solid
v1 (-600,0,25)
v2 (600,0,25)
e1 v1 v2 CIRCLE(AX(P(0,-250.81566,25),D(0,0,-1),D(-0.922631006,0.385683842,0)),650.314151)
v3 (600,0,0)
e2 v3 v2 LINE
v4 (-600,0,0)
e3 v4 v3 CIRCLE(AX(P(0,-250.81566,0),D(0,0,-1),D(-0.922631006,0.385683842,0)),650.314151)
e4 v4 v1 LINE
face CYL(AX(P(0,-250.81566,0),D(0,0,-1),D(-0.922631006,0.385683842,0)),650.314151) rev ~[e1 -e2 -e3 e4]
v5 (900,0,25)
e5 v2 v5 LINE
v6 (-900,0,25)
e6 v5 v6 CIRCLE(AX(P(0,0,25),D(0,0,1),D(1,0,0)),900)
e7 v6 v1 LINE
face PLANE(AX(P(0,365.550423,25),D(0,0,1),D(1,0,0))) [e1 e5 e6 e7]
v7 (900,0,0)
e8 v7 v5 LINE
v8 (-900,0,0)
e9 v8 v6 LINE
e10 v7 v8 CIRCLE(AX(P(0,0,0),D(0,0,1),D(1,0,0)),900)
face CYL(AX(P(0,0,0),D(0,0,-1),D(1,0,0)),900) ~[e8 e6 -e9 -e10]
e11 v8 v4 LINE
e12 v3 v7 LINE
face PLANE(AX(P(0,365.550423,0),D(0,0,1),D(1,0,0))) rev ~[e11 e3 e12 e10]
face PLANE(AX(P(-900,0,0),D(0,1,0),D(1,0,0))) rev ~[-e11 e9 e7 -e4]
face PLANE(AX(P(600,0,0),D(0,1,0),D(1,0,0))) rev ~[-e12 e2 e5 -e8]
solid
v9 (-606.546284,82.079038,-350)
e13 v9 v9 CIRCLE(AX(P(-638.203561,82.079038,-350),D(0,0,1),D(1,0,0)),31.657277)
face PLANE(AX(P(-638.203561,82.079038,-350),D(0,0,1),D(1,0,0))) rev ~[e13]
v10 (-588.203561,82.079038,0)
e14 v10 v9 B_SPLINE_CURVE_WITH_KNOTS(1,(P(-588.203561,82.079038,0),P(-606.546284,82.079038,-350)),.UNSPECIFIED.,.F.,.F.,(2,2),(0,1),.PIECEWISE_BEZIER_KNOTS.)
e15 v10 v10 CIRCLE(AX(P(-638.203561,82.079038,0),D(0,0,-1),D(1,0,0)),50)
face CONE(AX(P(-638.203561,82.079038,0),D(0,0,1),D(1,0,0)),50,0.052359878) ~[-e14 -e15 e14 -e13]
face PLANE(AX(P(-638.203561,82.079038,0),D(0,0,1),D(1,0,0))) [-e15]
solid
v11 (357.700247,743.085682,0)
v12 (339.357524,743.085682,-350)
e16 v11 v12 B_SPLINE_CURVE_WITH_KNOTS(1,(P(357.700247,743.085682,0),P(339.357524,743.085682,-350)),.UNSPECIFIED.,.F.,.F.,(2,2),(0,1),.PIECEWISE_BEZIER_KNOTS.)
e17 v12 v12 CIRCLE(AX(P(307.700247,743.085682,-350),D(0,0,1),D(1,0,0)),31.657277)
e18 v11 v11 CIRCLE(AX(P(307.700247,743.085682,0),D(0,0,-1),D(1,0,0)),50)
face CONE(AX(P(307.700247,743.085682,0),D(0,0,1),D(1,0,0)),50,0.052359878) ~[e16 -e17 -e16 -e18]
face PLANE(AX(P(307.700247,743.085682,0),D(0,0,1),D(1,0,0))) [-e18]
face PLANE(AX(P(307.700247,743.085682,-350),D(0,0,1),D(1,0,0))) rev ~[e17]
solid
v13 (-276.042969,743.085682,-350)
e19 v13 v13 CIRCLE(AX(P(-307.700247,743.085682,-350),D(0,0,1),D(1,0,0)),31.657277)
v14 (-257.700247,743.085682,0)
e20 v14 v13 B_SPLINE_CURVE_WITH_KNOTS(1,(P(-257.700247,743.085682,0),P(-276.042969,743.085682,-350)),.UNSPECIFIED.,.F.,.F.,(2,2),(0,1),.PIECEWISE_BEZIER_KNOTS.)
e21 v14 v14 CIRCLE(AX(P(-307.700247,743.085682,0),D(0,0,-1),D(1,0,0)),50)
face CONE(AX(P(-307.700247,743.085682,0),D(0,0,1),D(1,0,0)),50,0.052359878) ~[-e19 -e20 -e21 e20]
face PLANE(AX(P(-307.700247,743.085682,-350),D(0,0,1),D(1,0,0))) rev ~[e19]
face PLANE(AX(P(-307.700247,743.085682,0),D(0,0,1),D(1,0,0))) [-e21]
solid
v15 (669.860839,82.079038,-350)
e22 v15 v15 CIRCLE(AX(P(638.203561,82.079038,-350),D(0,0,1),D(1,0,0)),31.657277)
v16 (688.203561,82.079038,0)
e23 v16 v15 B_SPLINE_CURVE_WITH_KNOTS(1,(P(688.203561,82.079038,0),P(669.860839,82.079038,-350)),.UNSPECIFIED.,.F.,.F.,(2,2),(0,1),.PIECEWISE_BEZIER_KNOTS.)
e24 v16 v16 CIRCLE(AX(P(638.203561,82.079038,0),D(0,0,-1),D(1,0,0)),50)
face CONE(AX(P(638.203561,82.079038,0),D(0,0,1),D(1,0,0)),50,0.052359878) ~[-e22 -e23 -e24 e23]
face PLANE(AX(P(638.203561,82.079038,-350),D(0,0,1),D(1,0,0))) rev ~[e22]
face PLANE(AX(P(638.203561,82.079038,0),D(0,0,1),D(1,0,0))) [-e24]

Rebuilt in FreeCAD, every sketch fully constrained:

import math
import FreeCAD as App
import Part
import Sketcher
from FreeCAD import Vector
Q = App.Units.Quantity

doc = App.newDocument("Part")
body = doc.addObject("PartDesign::Body", "Body")

sketch1 = body.newObject("Sketcher::SketchObject", "Sketch")
sketch1.AttachmentSupport = (doc.getObject("XY_Plane"), [""])
sketch1.MapMode = "FlatFace"
sketch1.addGeometry(Part.LineSegment(Vector(600, 0, 0), Vector(900, 0, 0)), False)
sketch1.addGeometry(Part.ArcOfCircle(Part.Circle(Vector(0, 0, 0), Vector(0, 0, 1), 900), math.radians(0), math.radians(180)), False)
sketch1.addGeometry(Part.LineSegment(Vector(-900, 0, 0), Vector(-600, 0, 0)), False)
sketch1.addGeometry(Part.ArcOfCircle(Part.Circle(Vector(0, -251, 0), Vector(0, 0, 1), 650), math.radians(23), math.radians(157)), False)
sketch1.addConstraint(Sketcher.Constraint("Coincident", 0, 2, 1, 1))
sketch1.addConstraint(Sketcher.Constraint("Coincident", 1, 2, 2, 1))
sketch1.addConstraint(Sketcher.Constraint("Coincident", 2, 2, 3, 2))
sketch1.addConstraint(Sketcher.Constraint("Coincident", 3, 1, 0, 1))
sketch1.addConstraint(Sketcher.Constraint("Horizontal", 0))
sketch1.addConstraint(Sketcher.Constraint("Horizontal", 2))
sketch1.addConstraint(Sketcher.Constraint("Coincident", 1, 3, -1, 1))
sketch1.addConstraint(Sketcher.Constraint("PointOnObject", 3, 3, -2))
sketch1.addConstraint(Sketcher.Constraint("PointOnObject", 0, 2, -1))
sketch1.addConstraint(Sketcher.Constraint("PointOnObject", 2, 2, -1))
sketch1.addConstraint(Sketcher.Constraint("Radius", 1, Q("900 mm")))
sketch1.addConstraint(Sketcher.Constraint("DistanceX", 0, 1, 0, 2, Q("300 mm")))
sketch1.addConstraint(Sketcher.Constraint("Radius", 3, Q("650.314151 mm")))
pad1 = body.newObject("PartDesign::Pad", "Pad")
pad1.Profile = sketch1
pad1.Length = 25
body2 = doc.addObject("PartDesign::Body", "Body001")

sketch2 = body2.newObject("Sketcher::SketchObject", "Sketch001")
sketch2.AttachmentSupport = (doc.getObject("XY_Plane001"), [""])
sketch2.MapMode = "FlatFace"
sketch2.addGeometry(Part.Circle(Vector(-638, 82, 0), Vector(0, 0, 1), 50), False)
sketch2.addConstraint(Sketcher.Constraint("Diameter", 0, Q("100 mm")))
sketch2.addConstraint(Sketcher.Constraint("DistanceX", 0, 3, -1, 1, Q("638.203561 mm")))
sketch2.addConstraint(Sketcher.Constraint("DistanceY", -1, 1, 0, 3, Q("82.079038 mm")))
pad2 = body2.newObject("PartDesign::Pad", "Pad001")
pad2.Profile = sketch2
pad2.Length = 350
pad2.Reversed = True
pad2.TaperAngle = -3
body3 = doc.addObject("PartDesign::Body", "Body002")

sketch3 = body3.newObject("Sketcher::SketchObject", "Sketch002")
sketch3.AttachmentSupport = (doc.getObject("XY_Plane002"), [""])
sketch3.MapMode = "FlatFace"
sketch3.addGeometry(Part.Circle(Vector(-308, 743, 0), Vector(0, 0, 1), 50), False)
sketch3.addConstraint(Sketcher.Constraint("Diameter", 0, Q("100 mm")))
sketch3.addConstraint(Sketcher.Constraint("DistanceX", 0, 3, -1, 1, Q("307.700247 mm")))
sketch3.addConstraint(Sketcher.Constraint("DistanceY", -1, 1, 0, 3, Q("743.085682 mm")))
pad3 = body3.newObject("PartDesign::Pad", "Pad002")
pad3.Profile = sketch3
pad3.Length = 350
pad3.Reversed = True
pad3.TaperAngle = -3
body4 = doc.addObject("PartDesign::Body", "Body003")

sketch4 = body4.newObject("Sketcher::SketchObject", "Sketch003")
sketch4.AttachmentSupport = (doc.getObject("XY_Plane003"), [""])
sketch4.MapMode = "FlatFace"
sketch4.addGeometry(Part.Circle(Vector(308, 743, 0), Vector(0, 0, 1), 50), False)
sketch4.addConstraint(Sketcher.Constraint("Diameter", 0, Q("100 mm")))
sketch4.addConstraint(Sketcher.Constraint("DistanceX", -1, 1, 0, 3, Q("307.700247 mm")))
sketch4.addConstraint(Sketcher.Constraint("DistanceY", -1, 1, 0, 3, Q("743.085682 mm")))
pad4 = body4.newObject("PartDesign::Pad", "Pad003")
pad4.Profile = sketch4
pad4.Length = 350
pad4.Reversed = True
pad4.TaperAngle = -3
body5 = doc.addObject("PartDesign::Body", "Body004")

sketch5 = body5.newObject("Sketcher::SketchObject", "Sketch004")
sketch5.AttachmentSupport = (doc.getObject("XY_Plane004"), [""])
sketch5.MapMode = "FlatFace"
sketch5.addGeometry(Part.Circle(Vector(638, 82, 0), Vector(0, 0, 1), 50), False)
sketch5.addConstraint(Sketcher.Constraint("Diameter", 0, Q("100 mm")))
sketch5.addConstraint(Sketcher.Constraint("DistanceX", -1, 1, 0, 3, Q("638.203561 mm")))
sketch5.addConstraint(Sketcher.Constraint("DistanceY", -1, 1, 0, 3, Q("82.079038 mm")))
pad5 = body5.newObject("PartDesign::Pad", "Pad004")
pad5.Profile = sketch5
pad5.Length = 350
pad5.Reversed = True
pad5.TaperAngle = -3

doc.recompute()
